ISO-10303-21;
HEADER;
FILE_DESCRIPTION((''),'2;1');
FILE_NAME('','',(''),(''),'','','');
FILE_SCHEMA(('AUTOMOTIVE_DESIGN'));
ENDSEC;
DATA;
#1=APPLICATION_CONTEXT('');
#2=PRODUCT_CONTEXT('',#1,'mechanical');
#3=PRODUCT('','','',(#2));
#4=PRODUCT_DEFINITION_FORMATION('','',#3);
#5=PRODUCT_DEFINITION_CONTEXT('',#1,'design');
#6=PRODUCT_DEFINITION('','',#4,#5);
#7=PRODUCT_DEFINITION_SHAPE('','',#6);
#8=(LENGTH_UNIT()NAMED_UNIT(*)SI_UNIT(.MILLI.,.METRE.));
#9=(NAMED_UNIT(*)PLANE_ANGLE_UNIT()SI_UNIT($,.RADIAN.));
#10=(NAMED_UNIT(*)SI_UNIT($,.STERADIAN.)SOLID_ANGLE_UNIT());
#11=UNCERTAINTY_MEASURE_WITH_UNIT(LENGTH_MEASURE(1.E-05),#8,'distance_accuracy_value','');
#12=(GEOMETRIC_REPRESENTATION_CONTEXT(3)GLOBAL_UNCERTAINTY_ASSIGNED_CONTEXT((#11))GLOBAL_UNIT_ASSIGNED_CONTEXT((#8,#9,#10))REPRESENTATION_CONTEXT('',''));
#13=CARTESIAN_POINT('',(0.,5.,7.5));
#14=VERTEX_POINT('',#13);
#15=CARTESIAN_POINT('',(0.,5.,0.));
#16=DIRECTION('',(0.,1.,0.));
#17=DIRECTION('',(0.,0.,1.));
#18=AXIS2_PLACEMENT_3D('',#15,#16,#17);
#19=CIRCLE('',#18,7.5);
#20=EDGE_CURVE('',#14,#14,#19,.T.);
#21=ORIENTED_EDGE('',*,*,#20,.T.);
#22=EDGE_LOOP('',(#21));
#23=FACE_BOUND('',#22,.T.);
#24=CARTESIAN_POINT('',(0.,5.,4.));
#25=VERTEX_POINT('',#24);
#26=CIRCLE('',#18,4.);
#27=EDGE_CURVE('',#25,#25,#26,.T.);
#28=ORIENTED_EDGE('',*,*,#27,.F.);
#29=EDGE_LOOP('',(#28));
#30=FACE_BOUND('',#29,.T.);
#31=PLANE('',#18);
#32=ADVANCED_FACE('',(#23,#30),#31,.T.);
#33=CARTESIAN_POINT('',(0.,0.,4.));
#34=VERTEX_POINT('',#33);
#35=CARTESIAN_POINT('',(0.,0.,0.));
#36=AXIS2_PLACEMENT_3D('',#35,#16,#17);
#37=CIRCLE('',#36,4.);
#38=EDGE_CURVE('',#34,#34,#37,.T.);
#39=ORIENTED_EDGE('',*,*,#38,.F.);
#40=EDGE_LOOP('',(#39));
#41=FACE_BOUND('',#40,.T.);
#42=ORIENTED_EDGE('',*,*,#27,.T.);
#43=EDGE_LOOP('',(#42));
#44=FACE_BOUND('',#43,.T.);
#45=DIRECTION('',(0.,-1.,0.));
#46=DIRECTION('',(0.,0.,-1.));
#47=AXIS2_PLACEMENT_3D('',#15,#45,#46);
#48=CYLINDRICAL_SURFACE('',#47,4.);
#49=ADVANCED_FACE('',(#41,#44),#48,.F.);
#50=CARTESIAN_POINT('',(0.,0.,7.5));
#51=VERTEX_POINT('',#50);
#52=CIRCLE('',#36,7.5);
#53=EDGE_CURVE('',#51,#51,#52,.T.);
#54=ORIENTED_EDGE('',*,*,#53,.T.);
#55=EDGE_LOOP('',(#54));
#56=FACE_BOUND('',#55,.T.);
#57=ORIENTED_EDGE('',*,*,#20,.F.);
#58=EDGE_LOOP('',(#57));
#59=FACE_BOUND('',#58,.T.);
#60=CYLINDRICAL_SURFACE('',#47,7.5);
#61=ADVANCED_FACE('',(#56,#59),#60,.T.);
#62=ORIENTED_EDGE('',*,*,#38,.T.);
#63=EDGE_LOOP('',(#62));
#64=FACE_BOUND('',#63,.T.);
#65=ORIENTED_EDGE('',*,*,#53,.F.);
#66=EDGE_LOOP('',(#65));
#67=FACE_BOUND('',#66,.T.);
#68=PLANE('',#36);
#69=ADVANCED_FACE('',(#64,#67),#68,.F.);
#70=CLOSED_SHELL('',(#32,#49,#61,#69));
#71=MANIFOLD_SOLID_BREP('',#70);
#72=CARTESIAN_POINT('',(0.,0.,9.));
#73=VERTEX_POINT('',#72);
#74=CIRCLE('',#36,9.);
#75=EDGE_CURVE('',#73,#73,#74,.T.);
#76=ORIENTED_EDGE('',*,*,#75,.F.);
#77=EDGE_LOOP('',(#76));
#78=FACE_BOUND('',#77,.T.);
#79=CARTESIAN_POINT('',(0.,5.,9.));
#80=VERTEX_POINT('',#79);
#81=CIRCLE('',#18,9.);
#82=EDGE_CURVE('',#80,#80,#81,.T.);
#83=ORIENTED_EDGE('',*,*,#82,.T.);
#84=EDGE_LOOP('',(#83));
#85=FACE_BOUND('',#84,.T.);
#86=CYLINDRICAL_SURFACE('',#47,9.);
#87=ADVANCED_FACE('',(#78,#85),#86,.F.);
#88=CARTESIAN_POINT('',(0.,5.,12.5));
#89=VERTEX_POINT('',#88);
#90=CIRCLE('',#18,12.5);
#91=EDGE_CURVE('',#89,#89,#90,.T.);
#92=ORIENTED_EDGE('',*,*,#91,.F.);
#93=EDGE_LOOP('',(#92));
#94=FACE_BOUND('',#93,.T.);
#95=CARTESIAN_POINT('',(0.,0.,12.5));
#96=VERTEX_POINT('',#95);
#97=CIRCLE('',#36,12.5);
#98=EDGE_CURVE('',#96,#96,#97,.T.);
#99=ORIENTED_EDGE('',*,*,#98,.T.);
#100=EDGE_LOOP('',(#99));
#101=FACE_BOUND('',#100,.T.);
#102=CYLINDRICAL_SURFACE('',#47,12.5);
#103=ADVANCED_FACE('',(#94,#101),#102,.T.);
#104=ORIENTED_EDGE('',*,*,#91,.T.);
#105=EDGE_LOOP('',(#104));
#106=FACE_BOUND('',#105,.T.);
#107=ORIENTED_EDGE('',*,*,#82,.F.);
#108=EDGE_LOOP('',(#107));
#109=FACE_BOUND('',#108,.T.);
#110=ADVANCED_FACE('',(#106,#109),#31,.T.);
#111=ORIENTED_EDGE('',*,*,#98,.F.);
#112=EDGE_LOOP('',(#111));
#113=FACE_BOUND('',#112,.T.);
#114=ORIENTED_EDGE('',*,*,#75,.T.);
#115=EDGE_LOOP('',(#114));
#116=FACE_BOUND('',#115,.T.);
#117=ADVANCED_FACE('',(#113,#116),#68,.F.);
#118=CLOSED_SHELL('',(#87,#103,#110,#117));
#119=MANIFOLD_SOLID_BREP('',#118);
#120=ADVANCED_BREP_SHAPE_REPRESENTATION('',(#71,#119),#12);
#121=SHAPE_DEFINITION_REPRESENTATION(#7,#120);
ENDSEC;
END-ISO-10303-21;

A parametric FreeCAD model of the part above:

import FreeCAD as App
import Part
import Sketcher

V = App.Vector
Q = App.Units.Quantity

doc = App.newDocument("Part")
body = doc.addObject("PartDesign::Body", "Body")

sketch1 = body.newObject("Sketcher::SketchObject", "Sketch")
sketch1.AttachmentSupport = (doc.getObject("XZ_Plane"), [""])
sketch1.MapMode = "FlatFace"
sketch1.addGeometry(Part.Circle(V(0, 0, 0), V(0, 0, 1), 7.5), False)
sketch1.addGeometry(Part.Circle(V(0, 0, 0), V(0, 0, 1), 4), False)
sketch1.addConstraint(Sketcher.Constraint("Coincident", 0, 3, -1, 1))
sketch1.addConstraint(Sketcher.Constraint("Coincident", 1, 3, -1, 1))
sketch1.addConstraint(Sketcher.Constraint("Diameter", 0, Q("15 mm")))
sketch1.addConstraint(Sketcher.Constraint("Diameter", 1, Q("8 mm")))
pad1 = body.newObject("PartDesign::Pad", "Pad")
pad1.Profile = sketch1
pad1.Length = 5
pad1.Reversed = True
body2 = doc.addObject("PartDesign::Body", "Body001")

sketch2 = body2.newObject("Sketcher::SketchObject", "Sketch001")
sketch2.AttachmentSupport = (doc.getObject("XZ_Plane001"), [""])
sketch2.MapMode = "FlatFace"
sketch2.addGeometry(Part.Circle(V(0, 0, 0), V(0, 0, 1), 12.5), False)
sketch2.addGeometry(Part.Circle(V(0, 0, 0), V(0, 0, 1), 9), False)
sketch2.addConstraint(Sketcher.Constraint("Coincident", 0, 3, -1, 1))
sketch2.addConstraint(Sketcher.Constraint("Coincident", 1, 3, -1, 1))
sketch2.addConstraint(Sketcher.Constraint("Diameter", 0, Q("25 mm")))
sketch2.addConstraint(Sketcher.Constraint("Diameter", 1, Q("18 mm")))
pad2 = body2.newObject("PartDesign::Pad", "Pad001")
pad2.Profile = sketch2
pad2.Length = 5
pad2.Reversed = True

doc.recompute()
